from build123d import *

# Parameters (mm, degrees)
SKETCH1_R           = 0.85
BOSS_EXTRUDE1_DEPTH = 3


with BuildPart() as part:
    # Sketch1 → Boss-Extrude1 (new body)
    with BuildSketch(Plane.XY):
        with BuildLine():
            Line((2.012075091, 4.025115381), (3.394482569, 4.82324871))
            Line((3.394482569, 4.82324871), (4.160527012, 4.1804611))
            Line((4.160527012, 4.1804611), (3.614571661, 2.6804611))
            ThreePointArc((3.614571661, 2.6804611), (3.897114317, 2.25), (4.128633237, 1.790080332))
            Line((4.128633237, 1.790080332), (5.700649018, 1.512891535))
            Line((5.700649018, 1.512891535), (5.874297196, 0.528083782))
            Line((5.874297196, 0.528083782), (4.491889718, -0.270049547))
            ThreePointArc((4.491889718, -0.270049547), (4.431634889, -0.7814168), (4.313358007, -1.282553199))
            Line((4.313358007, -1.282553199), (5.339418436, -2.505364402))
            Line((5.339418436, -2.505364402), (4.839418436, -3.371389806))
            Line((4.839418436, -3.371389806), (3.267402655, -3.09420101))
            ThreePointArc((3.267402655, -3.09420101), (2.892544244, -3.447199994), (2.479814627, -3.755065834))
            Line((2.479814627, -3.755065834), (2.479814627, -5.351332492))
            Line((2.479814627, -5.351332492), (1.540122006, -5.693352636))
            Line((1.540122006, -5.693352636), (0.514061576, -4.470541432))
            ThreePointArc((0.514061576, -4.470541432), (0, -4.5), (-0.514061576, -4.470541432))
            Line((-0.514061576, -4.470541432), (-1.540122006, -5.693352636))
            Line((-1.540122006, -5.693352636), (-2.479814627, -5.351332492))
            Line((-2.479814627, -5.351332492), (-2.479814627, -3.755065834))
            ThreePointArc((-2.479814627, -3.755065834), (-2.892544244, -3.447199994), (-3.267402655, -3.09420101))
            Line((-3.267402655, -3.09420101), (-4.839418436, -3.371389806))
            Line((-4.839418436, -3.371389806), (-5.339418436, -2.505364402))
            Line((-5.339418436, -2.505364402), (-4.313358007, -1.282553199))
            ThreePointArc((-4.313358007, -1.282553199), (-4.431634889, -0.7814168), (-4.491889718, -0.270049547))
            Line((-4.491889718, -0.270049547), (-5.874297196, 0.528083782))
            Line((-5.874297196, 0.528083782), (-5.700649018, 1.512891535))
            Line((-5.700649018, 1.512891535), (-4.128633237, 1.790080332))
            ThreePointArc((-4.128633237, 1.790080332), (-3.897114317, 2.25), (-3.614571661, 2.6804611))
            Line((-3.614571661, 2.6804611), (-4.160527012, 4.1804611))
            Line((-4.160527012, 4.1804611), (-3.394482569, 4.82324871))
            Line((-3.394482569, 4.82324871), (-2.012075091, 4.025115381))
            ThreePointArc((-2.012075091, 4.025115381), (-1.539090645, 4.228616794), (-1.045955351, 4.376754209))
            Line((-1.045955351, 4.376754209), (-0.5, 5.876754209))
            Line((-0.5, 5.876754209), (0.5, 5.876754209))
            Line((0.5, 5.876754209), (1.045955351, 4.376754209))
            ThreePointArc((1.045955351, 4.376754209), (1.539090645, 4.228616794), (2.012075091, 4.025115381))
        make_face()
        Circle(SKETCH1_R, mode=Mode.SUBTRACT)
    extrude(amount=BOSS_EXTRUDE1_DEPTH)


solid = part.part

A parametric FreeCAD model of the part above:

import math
import FreeCAD as App
import Part
import Sketcher

V = App.Vector
Q = App.Units.Quantity

doc = App.newDocument("Part")
params = doc.addObject("Spreadsheet::Sheet", "Params")
for row, (alias, value) in enumerate([
    ("sketch1_diameter", "1.7 mm"),
    ("sketch1_radius", "4.5 mm"),
    ("sketch1_width", "1 mm"),
    ("sketch1_length", "1 mm"),
    ("pad1_length", "3 mm"),
], start=1):
    params.set(f"A{row}", alias)
    params.set(f"B{row}", "=" + value)
    params.setAlias(f"B{row}", alias)

body = doc.addObject("PartDesign::Body", "Body")

sketch1 = body.newObject("Sketcher::SketchObject", "Sketch")
sketch1.AttachmentSupport = (doc.getObject("XY_Plane"), [""])
sketch1.MapMode = "FlatFace"
sketch1.addGeometry([
    Part.LineSegment(V(3.4, 4.8, 0), V(2, 4, 0)),
    Part.ArcOfCircle(Part.Circle(V(0, 0, 0), V(0, 0, 1), 4.5), math.radians(63.44), math.radians(76.56)),
    Part.LineSegment(V(1, 4.4, 0), V(0.5, 5.9, 0)),
    Part.LineSegment(V(0.5, 5.9, 0), V(-0.5, 5.9, 0)),
    Part.LineSegment(V(-0.5, 5.9, 0), V(-1, 4.4, 0)),
    Part.ArcOfCircle(Part.Circle(V(0, 0, 0), V(0, 0, 1), 4.5), math.radians(103.44), math.radians(116.56)),
    Part.LineSegment(V(-2, 4, 0), V(-3.4, 4.8, 0)),
    Part.LineSegment(V(-3.4, 4.8, 0), V(-4.2, 4.2, 0)),
    Part.LineSegment(V(-4.2, 4.2, 0), V(-3.6, 2.7, 0)),
    Part.ArcOfCircle(Part.Circle(V(0, 0, 0), V(0, 0, 1), 4.5), math.radians(143.44), math.radians(156.56)),
    Part.LineSegment(V(-4.1, 1.8, 0), V(-5.7, 1.5, 0)),
    Part.LineSegment(V(-5.7, 1.5, 0), V(-5.9, 0.5, 0)),
    Part.LineSegment(V(-5.9, 0.5, 0), V(-4.5, -0.3, 0)),
    Part.ArcOfCircle(Part.Circle(V(0, 0, 0), V(0, 0, 1), 4.5), math.radians(-176.56), math.radians(-163.44)),
    Part.LineSegment(V(-4.3, -1.3, 0), V(-5.3, -2.5, 0)),
    Part.LineSegment(V(-5.3, -2.5, 0), V(-4.8, -3.4, 0)),
    Part.LineSegment(V(-4.8, -3.4, 0), V(-3.3, -3.1, 0)),
    Part.ArcOfCircle(Part.Circle(V(0, 0, 0), V(0, 0, 1), 4.5), math.radians(-136.56), math.radians(-123.44)),
    Part.LineSegment(V(-2.5, -3.8, 0), V(-2.5, -5.4, 0)),
    Part.LineSegment(V(-2.5, -5.4, 0), V(-1.5, -5.7, 0)),
    Part.LineSegment(V(-1.5, -5.7, 0), V(-0.5, -4.5, 0)),
    Part.ArcOfCircle(Part.Circle(V(0, 0, 0), V(0, 0, 1), 4.5), math.radians(-96.56), math.radians(-83.44)),
    Part.LineSegment(V(0.5, -4.5, 0), V(1.5, -5.7, 0)),
    Part.LineSegment(V(1.5, -5.7, 0), V(2.5, -5.4, 0)),
    Part.LineSegment(V(2.5, -5.4, 0), V(2.5, -3.8, 0)),
    Part.ArcOfCircle(Part.Circle(V(0, 0, 0), V(0, 0, 1), 4.5), math.radians(-56.56), math.radians(-43.44)),
    Part.LineSegment(V(3.3, -3.1, 0), V(4.8, -3.4, 0)),
    Part.LineSegment(V(4.8, -3.4, 0), V(5.3, -2.5, 0)),
    Part.LineSegment(V(5.3, -2.5, 0), V(4.3, -1.3, 0)),
    Part.ArcOfCircle(Part.Circle(V(0, 0, 0), V(0, 0, 1), 4.5), math.radians(-16.56), math.radians(-3.44)),
    Part.LineSegment(V(4.5, -0.3, 0), V(5.9, 0.5, 0)),
    Part.LineSegment(V(5.9, 0.5, 0), V(5.7, 1.5, 0)),
    Part.LineSegment(V(5.7, 1.5, 0), V(4.1, 1.8, 0)),
    Part.ArcOfCircle(Part.Circle(V(0, 0, 0), V(0, 0, 1), 4.5), math.radians(23.44), math.radians(36.56)),
    Part.LineSegment(V(3.6, 2.7, 0), V(4.2, 4.2, 0)),
    Part.LineSegment(V(4.2, 4.2, 0), V(3.4, 4.8, 0)),
    Part.Circle(V(0, 0, 0), V(0, 0, 1), 0.8),
], False)
sketch1.addConstraint([
    Sketcher.Constraint("Coincident", 0, 2, 1, 1),
    Sketcher.Constraint("Coincident", 1, 2, 2, 1),
    Sketcher.Constraint("Coincident", 2, 2, 3, 1),
    Sketcher.Constraint("Coincident", 3, 2, 4, 1),
    Sketcher.Constraint("Coincident", 4, 2, 5, 1),
    Sketcher.Constraint("Coincident", 5, 2, 6, 1),
    Sketcher.Constraint("Coincident", 6, 2, 7, 1),
    Sketcher.Constraint("Coincident", 7, 2, 8, 1),
    Sketcher.Constraint("Coincident", 8, 2, 9, 1),
    Sketcher.Constraint("Coincident", 9, 2, 10, 1),
    Sketcher.Constraint("Coincident", 10, 2, 11, 1),
    Sketcher.Constraint("Coincident", 11, 2, 12, 1),
    Sketcher.Constraint("Coincident", 12, 2, 13, 1),
    Sketcher.Constraint("Coincident", 13, 2, 14, 1),
    Sketcher.Constraint("Coincident", 14, 2, 15, 1),
    Sketcher.Constraint("Coincident", 15, 2, 16, 1),
    Sketcher.Constraint("Coincident", 16, 2, 17, 1),
    Sketcher.Constraint("Coincident", 17, 2, 18, 1),
    Sketcher.Constraint("Coincident", 18, 2, 19, 1),
    Sketcher.Constraint("Coincident", 19, 2, 20, 1),
    Sketcher.Constraint("Coincident", 20, 2, 21, 1),
    Sketcher.Constraint("Coincident", 21, 2, 22, 1),
    Sketcher.Constraint("Coincident", 22, 2, 23, 1),
    Sketcher.Constraint("Coincident", 23, 2, 24, 1),
    Sketcher.Constraint("Coincident", 24, 2, 25, 1),
    Sketcher.Constraint("Coincident", 25, 2, 26, 1),
    Sketcher.Constraint("Coincident", 26, 2, 27, 1),
    Sketcher.Constraint("Coincident", 27, 2, 28, 1),
    Sketcher.Constraint("Coincident", 28, 2, 29, 1),
    Sketcher.Constraint("Coincident", 29, 2, 30, 1),
    Sketcher.Constraint("Coincident", 30, 2, 31, 1),
    Sketcher.Constraint("Coincident", 31, 2, 32, 1),
    Sketcher.Constraint("Coincident", 32, 2, 33, 1),
    Sketcher.Constraint("Coincident", 33, 2, 34, 1),
    Sketcher.Constraint("Coincident", 34, 2, 35, 1),
    Sketcher.Constraint("Coincident", 35, 2, 0, 1),
    Sketcher.Constraint("Horizontal", 3),
    Sketcher.Constraint("Vertical", 18),
    Sketcher.Constraint("Vertical", 24),
    Sketcher.Constraint("Coincident", 1, 3, -1, 1),
    Sketcher.Constraint("Coincident", 5, 3, -1, 1),
    Sketcher.Constraint("Coincident", 9, 3, -1, 1),
    Sketcher.Constraint("Coincident", 13, 3, -1, 1),
    Sketcher.Constraint("Coincident", 17, 3, -1, 1),
    Sketcher.Constraint("Coincident", 21, 3, -1, 1),
    Sketcher.Constraint("Coincident", 25, 3, -1, 1),
    Sketcher.Constraint("Coincident", 29, 3, -1, 1),
    Sketcher.Constraint("Coincident", 33, 3, -1, 1),
    Sketcher.Constraint("Coincident", 36, 3, -1, 1),
    Sketcher.Constraint("Equal", 1, 5),
    Sketcher.Constraint("Equal", 5, 9),
    Sketcher.Constraint("Equal", 9, 13),
    Sketcher.Constraint("Equal", 13, 17),
    Sketcher.Constraint("Equal", 17, 21),
    Sketcher.Constraint("Equal", 21, 25),
    Sketcher.Constraint("Equal", 25, 29),
    Sketcher.Constraint("Equal", 29, 33),
    Sketcher.Constraint("Symmetric", 19, 2, 22, 2, -2),
    Sketcher.Constraint("Symmetric", 18, 2, 23, 2, -2),
    Sketcher.Constraint("Symmetric", 15, 2, 26, 2, -2),
    Sketcher.Constraint("Symmetric", 14, 2, 27, 2, -2),
    Sketcher.Constraint("Symmetric", 11, 2, 30, 2, -2),
    Sketcher.Constraint("Symmetric", 10, 2, 31, 2, -2),
    Sketcher.Constraint("Symmetric", 7, 2, 34, 2, -2),
    Sketcher.Constraint("Symmetric", 6, 2, 35, 2, -2),
    Sketcher.Constraint("Parallel", 2, 8),
    Sketcher.Constraint("Parallel", 6, 12),
    Sketcher.Constraint("Perpendicular", 0, 15),
    Sketcher.Constraint("Parallel", 10, 16),
    Sketcher.Constraint("Perpendicular", 4, 19),
    Sketcher.Constraint("Parallel", 14, 20),
    Sketcher.Constraint("Perpendicular", 7, 22),
    Sketcher.Constraint("Perpendicular", 8, 23),
    Sketcher.Constraint("Perpendicular", 11, 26),
    Sketcher.Constraint("Perpendicular", 12, 27),
    Sketcher.Constraint("Parallel", 22, 28),
    Sketcher.Constraint("Perpendicular", 15, 30),
    Sketcher.Constraint("Perpendicular", 16, 31),
    Sketcher.Constraint("Parallel", 26, 32),
    Sketcher.Constraint("Perpendicular", 19, 34),
    Sketcher.Constraint("Perpendicular", 20, 35),
    Sketcher.Constraint("Horizontal", 1, 2, 4, 2),
    Sketcher.Constraint("Equal", 0, 2),
    Sketcher.Constraint("Equal", 6, 8),
    Sketcher.Constraint("Equal", 8, 10),
    Sketcher.Constraint("Equal", 7, 11),
    Sketcher.Constraint("Equal", 10, 12),
    Sketcher.Constraint("Equal", 12, 14),
    Sketcher.Constraint("Equal", 11, 15),
    Sketcher.Constraint("Equal", 14, 16),
    Sketcher.Constraint("Equal", 15, 19),
    Sketcher.Constraint("Equal", 16, 20),
    Sketcher.Constraint("Diameter", 36, 1.7),
    Sketcher.Constraint("Radius", 1, 4.5),
    Sketcher.Constraint("DistanceX", 3, 2, 3, 1, 1.0),
    Sketcher.Constraint("Angle", 0, Q("-150 deg")),
    Sketcher.Constraint("Angle", 2, Q("110 deg")),
    Sketcher.Constraint("Angle", 7, Q("-140 deg")),
    Sketcher.Constraint("Angle", 10, Q("-170 deg")),
    Sketcher.Constraint("Distance", 7, 1.0),
    Sketcher.Constraint("DistanceY", 1, 2, 2, 2, 1.5),
    Sketcher.Constraint("DistanceY", 17, 2, 14, 2, 1.249701),
])
sketch1.setExpression("Constraints[92]", "Params.sketch1_diameter")
sketch1.setExpression("Constraints[93]", "Params.sketch1_radius")
sketch1.setExpression("Constraints[94]", "Params.sketch1_width")
sketch1.setExpression("Constraints[99]", "Params.sketch1_length")
pad1 = body.newObject("PartDesign::Pad", "Pad")
pad1.Profile = sketch1
pad1.setExpression("Length", "Params.pad1_length")

doc.recompute()
